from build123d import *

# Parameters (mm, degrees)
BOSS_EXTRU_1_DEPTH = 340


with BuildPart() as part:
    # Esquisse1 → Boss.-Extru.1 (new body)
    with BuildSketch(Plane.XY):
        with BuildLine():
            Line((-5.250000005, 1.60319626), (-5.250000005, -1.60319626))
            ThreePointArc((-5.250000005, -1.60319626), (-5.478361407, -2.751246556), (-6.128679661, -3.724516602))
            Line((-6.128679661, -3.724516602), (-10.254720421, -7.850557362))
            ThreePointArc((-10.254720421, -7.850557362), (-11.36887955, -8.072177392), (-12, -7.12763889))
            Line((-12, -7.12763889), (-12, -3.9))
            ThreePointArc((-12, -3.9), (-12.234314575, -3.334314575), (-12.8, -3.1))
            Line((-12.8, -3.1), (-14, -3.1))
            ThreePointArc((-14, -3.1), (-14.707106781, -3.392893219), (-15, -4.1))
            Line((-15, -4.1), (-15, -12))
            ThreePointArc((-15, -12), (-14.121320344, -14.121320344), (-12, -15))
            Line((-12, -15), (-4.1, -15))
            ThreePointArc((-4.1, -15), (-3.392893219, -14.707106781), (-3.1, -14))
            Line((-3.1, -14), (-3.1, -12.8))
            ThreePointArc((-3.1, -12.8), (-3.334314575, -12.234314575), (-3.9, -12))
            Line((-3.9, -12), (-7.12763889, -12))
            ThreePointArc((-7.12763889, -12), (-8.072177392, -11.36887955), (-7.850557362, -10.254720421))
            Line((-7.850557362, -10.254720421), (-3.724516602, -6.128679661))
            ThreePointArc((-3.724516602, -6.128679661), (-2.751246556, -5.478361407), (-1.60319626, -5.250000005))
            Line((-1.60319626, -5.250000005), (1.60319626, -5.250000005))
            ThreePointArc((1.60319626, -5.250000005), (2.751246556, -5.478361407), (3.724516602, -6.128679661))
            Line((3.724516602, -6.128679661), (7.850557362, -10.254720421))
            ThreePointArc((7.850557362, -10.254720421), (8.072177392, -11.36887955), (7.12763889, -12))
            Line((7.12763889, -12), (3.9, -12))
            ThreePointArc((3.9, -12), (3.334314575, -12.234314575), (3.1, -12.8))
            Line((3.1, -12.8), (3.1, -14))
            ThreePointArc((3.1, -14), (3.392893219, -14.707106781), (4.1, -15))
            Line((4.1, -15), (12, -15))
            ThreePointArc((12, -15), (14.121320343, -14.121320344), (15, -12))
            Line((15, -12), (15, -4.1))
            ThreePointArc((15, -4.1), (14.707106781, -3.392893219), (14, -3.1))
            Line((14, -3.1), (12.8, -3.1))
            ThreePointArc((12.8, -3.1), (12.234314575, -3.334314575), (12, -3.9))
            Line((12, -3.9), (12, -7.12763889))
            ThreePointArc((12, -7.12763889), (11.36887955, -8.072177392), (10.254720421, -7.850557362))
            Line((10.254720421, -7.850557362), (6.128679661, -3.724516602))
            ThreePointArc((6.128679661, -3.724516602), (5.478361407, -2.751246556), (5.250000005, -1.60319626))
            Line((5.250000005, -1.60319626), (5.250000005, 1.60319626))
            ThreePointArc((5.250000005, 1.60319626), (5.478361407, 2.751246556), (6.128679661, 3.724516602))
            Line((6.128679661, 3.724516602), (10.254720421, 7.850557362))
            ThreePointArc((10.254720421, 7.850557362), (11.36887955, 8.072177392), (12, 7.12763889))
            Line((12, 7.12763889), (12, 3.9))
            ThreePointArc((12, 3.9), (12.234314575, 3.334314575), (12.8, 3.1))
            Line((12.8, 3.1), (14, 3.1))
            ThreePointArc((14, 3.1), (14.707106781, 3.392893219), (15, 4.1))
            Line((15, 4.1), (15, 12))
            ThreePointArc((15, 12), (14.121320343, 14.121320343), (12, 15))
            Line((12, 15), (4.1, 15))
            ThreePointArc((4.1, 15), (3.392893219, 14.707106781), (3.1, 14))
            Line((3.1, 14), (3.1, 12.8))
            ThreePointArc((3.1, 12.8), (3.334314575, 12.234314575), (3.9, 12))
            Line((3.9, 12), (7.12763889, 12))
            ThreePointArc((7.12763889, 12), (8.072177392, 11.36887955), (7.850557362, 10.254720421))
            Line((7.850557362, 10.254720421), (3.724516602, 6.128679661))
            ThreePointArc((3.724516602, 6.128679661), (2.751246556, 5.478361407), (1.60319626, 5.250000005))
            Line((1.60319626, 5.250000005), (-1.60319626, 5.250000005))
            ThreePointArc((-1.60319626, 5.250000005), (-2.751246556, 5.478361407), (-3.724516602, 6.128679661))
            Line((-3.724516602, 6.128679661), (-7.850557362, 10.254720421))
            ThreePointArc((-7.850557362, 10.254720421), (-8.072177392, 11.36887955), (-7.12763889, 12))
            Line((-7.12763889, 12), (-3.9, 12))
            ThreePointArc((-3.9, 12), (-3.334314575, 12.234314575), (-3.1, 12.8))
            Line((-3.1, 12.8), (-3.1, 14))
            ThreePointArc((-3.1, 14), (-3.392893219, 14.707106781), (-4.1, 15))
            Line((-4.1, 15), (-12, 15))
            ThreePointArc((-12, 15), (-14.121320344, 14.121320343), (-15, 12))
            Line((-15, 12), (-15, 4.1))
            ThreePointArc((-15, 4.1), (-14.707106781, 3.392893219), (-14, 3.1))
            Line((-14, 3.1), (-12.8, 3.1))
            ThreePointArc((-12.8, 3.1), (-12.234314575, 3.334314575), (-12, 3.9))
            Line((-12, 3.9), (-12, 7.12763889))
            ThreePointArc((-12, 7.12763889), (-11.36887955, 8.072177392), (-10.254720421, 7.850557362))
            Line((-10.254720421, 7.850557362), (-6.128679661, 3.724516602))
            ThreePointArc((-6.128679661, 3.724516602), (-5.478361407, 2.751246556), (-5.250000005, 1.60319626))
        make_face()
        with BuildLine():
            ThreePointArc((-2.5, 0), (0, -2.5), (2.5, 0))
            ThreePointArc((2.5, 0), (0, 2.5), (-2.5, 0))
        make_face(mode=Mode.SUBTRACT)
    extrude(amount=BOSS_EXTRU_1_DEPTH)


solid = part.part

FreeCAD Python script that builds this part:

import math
import FreeCAD as App
import Part
import Sketcher
from FreeCAD import Vector
Q = App.Units.Quantity

doc = App.newDocument("Part")
params = doc.addObject("Spreadsheet::Sheet", "Params")
for row, (alias, value) in enumerate([
    ("sketch1_diameter", "5 mm"),
    ("sketch1_radius", "3 mm"),
    ("sketch1_radius2", "1 mm"),
    ("sketch1_radius3", "0.8 mm"),
    ("sketch1_width", "7.9 mm"),
    ("pad1_length", "340 mm"),
], start=1):
    params.set(f"A{row}", alias)
    params.set(f"B{row}", "=" + value)
    params.setAlias(f"B{row}", alias)

body = doc.addObject("PartDesign::Body", "Body")

# Sketch on XY plane
sketch1 = body.newObject("Sketcher::SketchObject", "Sketch")
sketch1.AttachmentSupport = (doc.getObject("XY_Plane"), [""])
sketch1.MapMode = "FlatFace"
sketch1.addGeometry([
    Part.LineSegment(Vector(-5.3, 1.6, 0), Vector(-5.3, -1.6, 0)),  # 0
    Part.ArcOfCircle(Part.Circle(Vector(-8.2, -1.6, 0), Vector(0, 0, 1), 3), math.radians(-45), math.radians(0)),  # 1
    Part.LineSegment(Vector(-6.1, -3.7, 0), Vector(-10.3, -7.9, 0)),  # 2
    Part.ArcOfCircle(Part.Circle(Vector(-11, -7.1, 0), Vector(0, 0, 1), 1), math.radians(180), math.radians(315)),  # 3
    Part.LineSegment(Vector(-12, -7.1, 0), Vector(-12, -3.9, 0)),  # 4
    Part.ArcOfCircle(Part.Circle(Vector(-12.8, -3.9, 0), Vector(0, 0, 1), 0.8), math.radians(0), math.radians(90)),  # 5
    Part.LineSegment(Vector(-12.8, -3.1, 0), Vector(-14, -3.1, 0)),  # 6
    Part.ArcOfCircle(Part.Circle(Vector(-14, -4.1, 0), Vector(0, 0, 1), 1), math.radians(90), math.radians(180)),  # 7
    Part.LineSegment(Vector(-15, -4.1, 0), Vector(-15, -12, 0)),  # 8
    Part.ArcOfCircle(Part.Circle(Vector(-12, -12, 0), Vector(0, 0, 1), 3), math.radians(180), math.radians(270)),  # 9
    Part.LineSegment(Vector(-12, -15, 0), Vector(-4.1, -15, 0)),  # 10
    Part.ArcOfCircle(Part.Circle(Vector(-4.1, -14, 0), Vector(0, 0, 1), 1), math.radians(-90), math.radians(0)),  # 11
    Part.LineSegment(Vector(-3.1, -14, 0), Vector(-3.1, -12.8, 0)),  # 12
    Part.ArcOfCircle(Part.Circle(Vector(-3.9, -12.8, 0), Vector(0, 0, 1), 0.8), math.radians(0), math.radians(90)),  # 13
    Part.LineSegment(Vector(-3.9, -12, 0), Vector(-7.1, -12, 0)),  # 14
    Part.ArcOfCircle(Part.Circle(Vector(-7.1, -11, 0), Vector(0, 0, 1), 1), math.radians(135), math.radians(270)),  # 15
    Part.LineSegment(Vector(-7.9, -10.3, 0), Vector(-3.7, -6.1, 0)),  # 16
    Part.ArcOfCircle(Part.Circle(Vector(-1.6, -8.2, 0), Vector(0, 0, 1), 3), math.radians(90), math.radians(135)),  # 17
    Part.LineSegment(Vector(-1.6, -5.3, 0), Vector(1.6, -5.3, 0)),  # 18
    Part.ArcOfCircle(Part.Circle(Vector(1.6, -8.2, 0), Vector(0, 0, 1), 3), math.radians(45), math.radians(90)),  # 19
    Part.LineSegment(Vector(3.7, -6.1, 0), Vector(7.9, -10.3, 0)),  # 20
    Part.ArcOfCircle(Part.Circle(Vector(7.1, -11, 0), Vector(0, 0, 1), 1), math.radians(-90), math.radians(45)),  # 21
    Part.LineSegment(Vector(7.1, -12, 0), Vector(3.9, -12, 0)),  # 22
    Part.ArcOfCircle(Part.Circle(Vector(3.9, -12.8, 0), Vector(0, 0, 1), 0.8), math.radians(90), math.radians(180)),  # 23
    Part.LineSegment(Vector(3.1, -12.8, 0), Vector(3.1, -14, 0)),  # 24
    Part.ArcOfCircle(Part.Circle(Vector(4.1, -14, 0), Vector(0, 0, 1), 1), math.radians(-180), math.radians(-90)),  # 25
    Part.LineSegment(Vector(4.1, -15, 0), Vector(12, -15, 0)),  # 26
    Part.ArcOfCircle(Part.Circle(Vector(12, -12, 0), Vector(0, 0, 1), 3), math.radians(-90), math.radians(0)),  # 27
    Part.LineSegment(Vector(15, -12, 0), Vector(15, -4.1, 0)),  # 28
    Part.ArcOfCircle(Part.Circle(Vector(14, -4.1, 0), Vector(0, 0, 1), 1), math.radians(0), math.radians(90)),  # 29
    Part.LineSegment(Vector(14, -3.1, 0), Vector(12.8, -3.1, 0)),  # 30
    Part.ArcOfCircle(Part.Circle(Vector(12.8, -3.9, 0), Vector(0, 0, 1), 0.8), math.radians(90), math.radians(180)),  # 31
    Part.LineSegment(Vector(12, -3.9, 0), Vector(12, -7.1, 0)),  # 32
    Part.ArcOfCircle(Part.Circle(Vector(11, -7.1, 0), Vector(0, 0, 1), 1), math.radians(-135), math.radians(0)),  # 33
    Part.LineSegment(Vector(10.3, -7.9, 0), Vector(6.1, -3.7, 0)),  # 34
    Part.ArcOfCircle(Part.Circle(Vector(8.2, -1.6, 0), Vector(0, 0, 1), 3), math.radians(180), math.radians(225)),  # 35
    Part.LineSegment(Vector(5.3, -1.6, 0), Vector(5.3, 1.6, 0)),  # 36
    Part.ArcOfCircle(Part.Circle(Vector(8.2, 1.6, 0), Vector(0, 0, 1), 3), math.radians(135), math.radians(180)),  # 37
    Part.LineSegment(Vector(6.1, 3.7, 0), Vector(10.3, 7.9, 0)),  # 38
    Part.ArcOfCircle(Part.Circle(Vector(11, 7.1, 0), Vector(0, 0, 1), 1), math.radians(0), math.radians(135)),  # 39
    Part.LineSegment(Vector(12, 7.1, 0), Vector(12, 3.9, 0)),  # 40
    Part.ArcOfCircle(Part.Circle(Vector(12.8, 3.9, 0), Vector(0, 0, 1), 0.8), math.radians(180), math.radians(270)),  # 41
    Part.LineSegment(Vector(12.8, 3.1, 0), Vector(14, 3.1, 0)),  # 42
    Part.ArcOfCircle(Part.Circle(Vector(14, 4.1, 0), Vector(0, 0, 1), 1), math.radians(-90), math.radians(0)),  # 43
    Part.LineSegment(Vector(15, 4.1, 0), Vector(15, 12, 0)),  # 44
    Part.ArcOfCircle(Part.Circle(Vector(12, 12, 0), Vector(0, 0, 1), 3), math.radians(0), math.radians(90)),  # 45
    Part.LineSegment(Vector(12, 15, 0), Vector(4.1, 15, 0)),  # 46
    Part.ArcOfCircle(Part.Circle(Vector(4.1, 14, 0), Vector(0, 0, 1), 1), math.radians(90), math.radians(180)),  # 47
    Part.LineSegment(Vector(3.1, 14, 0), Vector(3.1, 12.8, 0)),  # 48
    Part.ArcOfCircle(Part.Circle(Vector(3.9, 12.8, 0), Vector(0, 0, 1), 0.8), math.radians(180), math.radians(270)),  # 49
    Part.LineSegment(Vector(3.9, 12, 0), Vector(7.1, 12, 0)),  # 50
    Part.ArcOfCircle(Part.Circle(Vector(7.1, 11, 0), Vector(0, 0, 1), 1), math.radians(-45), math.radians(90)),  # 51
    Part.LineSegment(Vector(7.9, 10.3, 0), Vector(3.7, 6.1, 0)),  # 52
    Part.ArcOfCircle(Part.Circle(Vector(1.6, 8.2, 0), Vector(0, 0, 1), 3), math.radians(-90), math.radians(-45)),  # 53
    Part.LineSegment(Vector(1.6, 5.3, 0), Vector(-1.6, 5.3, 0)),  # 54
    Part.ArcOfCircle(Part.Circle(Vector(-1.6, 8.2, 0), Vector(0, 0, 1), 3), math.radians(-135), math.radians(-90)),  # 55
    Part.LineSegment(Vector(-3.7, 6.1, 0), Vector(-7.9, 10.3, 0)),  # 56
    Part.ArcOfCircle(Part.Circle(Vector(-7.1, 11, 0), Vector(0, 0, 1), 1), math.radians(90), math.radians(225)),  # 57
    Part.LineSegment(Vector(-7.1, 12, 0), Vector(-3.9, 12, 0)),  # 58
    Part.ArcOfCircle(Part.Circle(Vector(-3.9, 12.8, 0), Vector(0, 0, 1), 0.8), math.radians(-90), math.radians(0)),  # 59
    Part.LineSegment(Vector(-3.1, 12.8, 0), Vector(-3.1, 14, 0)),  # 60
    Part.ArcOfCircle(Part.Circle(Vector(-4.1, 14, 0), Vector(0, 0, 1), 1), math.radians(0), math.radians(90)),  # 61
    Part.LineSegment(Vector(-4.1, 15, 0), Vector(-12, 15, 0)),  # 62
    Part.ArcOfCircle(Part.Circle(Vector(-12, 12, 0), Vector(0, 0, 1), 3), math.radians(90), math.radians(180)),  # 63
    Part.LineSegment(Vector(-15, 12, 0), Vector(-15, 4.1, 0)),  # 64
    Part.ArcOfCircle(Part.Circle(Vector(-14, 4.1, 0), Vector(0, 0, 1), 1), math.radians(-180), math.radians(-90)),  # 65
    Part.LineSegment(Vector(-14, 3.1, 0), Vector(-12.8, 3.1, 0)),  # 66
    Part.ArcOfCircle(Part.Circle(Vector(-12.8, 3.9, 0), Vector(0, 0, 1), 0.8), math.radians(-90), math.radians(0)),  # 67
    Part.LineSegment(Vector(-12, 3.9, 0), Vector(-12, 7.1, 0)),  # 68
    Part.ArcOfCircle(Part.Circle(Vector(-11, 7.1, 0), Vector(0, 0, 1), 1), math.radians(45), math.radians(180)),  # 69
    Part.LineSegment(Vector(-10.3, 7.9, 0), Vector(-6.1, 3.7, 0)),  # 70
    Part.ArcOfCircle(Part.Circle(Vector(-8.2, 1.6, 0), Vector(0, 0, 1), 3), math.radians(0), math.radians(45)),  # 71
    Part.Circle(Vector(0, 0, 0), Vector(0, 0, 1), 2.5),  # 72
], False)
sketch1.addConstraint([
    Sketcher.Constraint("Tangent", 0, 2, 1, 2),
    Sketcher.Constraint("Tangent", 1, 1, 2, 1),
    Sketcher.Constraint("Tangent", 2, 2, 3, 2),
    Sketcher.Constraint("Tangent", 3, 1, 4, 1),
    Sketcher.Constraint("Tangent", 4, 2, 5, 1),
    Sketcher.Constraint("Tangent", 5, 2, 6, 1),
    Sketcher.Constraint("Tangent", 6, 2, 7, 1),
    Sketcher.Constraint("Tangent", 7, 2, 8, 1),
    Sketcher.Constraint("Tangent", 8, 2, 9, 1),
    Sketcher.Constraint("Tangent", 9, 2, 10, 1),
    Sketcher.Constraint("Tangent", 10, 2, 11, 1),
    Sketcher.Constraint("Tangent", 11, 2, 12, 1),
    Sketcher.Constraint("Tangent", 12, 2, 13, 1),
    Sketcher.Constraint("Tangent", 13, 2, 14, 1),
    Sketcher.Constraint("Tangent", 14, 2, 15, 2),
    Sketcher.Constraint("Tangent", 15, 1, 16, 1),
    Sketcher.Constraint("Tangent", 16, 2, 17, 2),
    Sketcher.Constraint("Tangent", 17, 1, 18, 1),
    Sketcher.Constraint("Tangent", 18, 2, 19, 2),
    Sketcher.Constraint("Tangent", 19, 1, 20, 1),
    Sketcher.Constraint("Tangent", 20, 2, 21, 2),
    Sketcher.Constraint("Tangent", 21, 1, 22, 1),
    Sketcher.Constraint("Tangent", 22, 2, 23, 1),
    Sketcher.Constraint("Tangent", 23, 2, 24, 1),
    Sketcher.Constraint("Tangent", 24, 2, 25, 1),
    Sketcher.Constraint("Tangent", 25, 2, 26, 1),
    Sketcher.Constraint("Tangent", 26, 2, 27, 1),
    Sketcher.Constraint("Tangent", 27, 2, 28, 1),
    Sketcher.Constraint("Tangent", 28, 2, 29, 1),
    Sketcher.Constraint("Tangent", 29, 2, 30, 1),
    Sketcher.Constraint("Tangent", 30, 2, 31, 1),
    Sketcher.Constraint("Tangent", 31, 2, 32, 1),
    Sketcher.Constraint("Tangent", 32, 2, 33, 2),
    Sketcher.Constraint("Tangent", 33, 1, 34, 1),
    Sketcher.Constraint("Tangent", 34, 2, 35, 2),
    Sketcher.Constraint("Tangent", 35, 1, 36, 1),
    Sketcher.Constraint("Tangent", 36, 2, 37, 2),
    Sketcher.Constraint("Tangent", 37, 1, 38, 1),
    Sketcher.Constraint("Tangent", 38, 2, 39, 2),
    Sketcher.Constraint("Tangent", 39, 1, 40, 1),
    Sketcher.Constraint("Tangent", 40, 2, 41, 1),
    Sketcher.Constraint("Tangent", 41, 2, 42, 1),
    Sketcher.Constraint("Tangent", 42, 2, 43, 1),
    Sketcher.Constraint("Tangent", 43, 2, 44, 1),
    Sketcher.Constraint("Tangent", 44, 2, 45, 1),
    Sketcher.Constraint("Tangent", 45, 2, 46, 1),
    Sketcher.Constraint("Tangent", 46, 2, 47, 1),
    Sketcher.Constraint("Tangent", 47, 2, 48, 1),
    Sketcher.Constraint("Tangent", 48, 2, 49, 1),
    Sketcher.Constraint("Tangent", 49, 2, 50, 1),
    Sketcher.Constraint("Tangent", 50, 2, 51, 2),
    Sketcher.Constraint("Tangent", 51, 1, 52, 1),
    Sketcher.Constraint("Tangent", 52, 2, 53, 2),
    Sketcher.Constraint("Tangent", 53, 1, 54, 1),
    Sketcher.Constraint("Tangent", 54, 2, 55, 2),
    Sketcher.Constraint("Tangent", 55, 1, 56, 1),
    Sketcher.Constraint("Tangent", 56, 2, 57, 2),
    Sketcher.Constraint("Tangent", 57, 1, 58, 1),
    Sketcher.Constraint("Tangent", 58, 2, 59, 1),
    Sketcher.Constraint("Tangent", 59, 2, 60, 1),
    Sketcher.Constraint("Tangent", 60, 2, 61, 1),
    Sketcher.Constraint("Tangent", 61, 2, 62, 1),
    Sketcher.Constraint("Tangent", 62, 2, 63, 1),
    Sketcher.Constraint("Tangent", 63, 2, 64, 1),
    Sketcher.Constraint("Tangent", 64, 2, 65, 1),
    Sketcher.Constraint("Tangent", 65, 2, 66, 1),
    Sketcher.Constraint("Tangent", 66, 2, 67, 1),
    Sketcher.Constraint("Tangent", 67, 2, 68, 1),
    Sketcher.Constraint("Tangent", 68, 2, 69, 2),
    Sketcher.Constraint("Tangent", 69, 1, 70, 1),
    Sketcher.Constraint("Tangent", 70, 2, 71, 2),
    Sketcher.Constraint("Tangent", 71, 1, 0, 1),
    Sketcher.Constraint("Vertical", 0),
    Sketcher.Constraint("Vertical", 4),
    Sketcher.Constraint("Horizontal", 6),
    Sketcher.Constraint("Vertical", 8),
    Sketcher.Constraint("Horizontal", 10),
    Sketcher.Constraint("Vertical", 12),
    Sketcher.Constraint("Horizontal", 14),
    Sketcher.Constraint("Horizontal", 18),
    Sketcher.Constraint("Horizontal", 22),
    Sketcher.Constraint("Vertical", 24),
    Sketcher.Constraint("Horizontal", 26),
    Sketcher.Constraint("Vertical", 28),
    Sketcher.Constraint("Horizontal", 30),
    Sketcher.Constraint("Vertical", 32),
    Sketcher.Constraint("Vertical", 36),
    Sketcher.Constraint("Vertical", 40),
    Sketcher.Constraint("Horizontal", 42),
    Sketcher.Constraint("Vertical", 44),
    Sketcher.Constraint("Horizontal", 46),
    Sketcher.Constraint("Vertical", 48),
    Sketcher.Constraint("Horizontal", 50),
    Sketcher.Constraint("Horizontal", 54),
    Sketcher.Constraint("Horizontal", 58),
    Sketcher.Constraint("Vertical", 60),
    Sketcher.Constraint("Horizontal", 62),
    Sketcher.Constraint("Vertical", 64),
    Sketcher.Constraint("Horizontal", 66),
    Sketcher.Constraint("Vertical", 68),
    Sketcher.Constraint("Coincident", 72, 3, -1, 1),
    Sketcher.Constraint("Equal", 1, 9),
    Sketcher.Constraint("Equal", 7, 11),
    Sketcher.Constraint("Equal", 5, 13),
    Sketcher.Constraint("Equal", 3, 15),
    Sketcher.Constraint("Equal", 9, 17),
    Sketcher.Constraint("Equal", 17, 19),
    Sketcher.Constraint("Equal", 15, 21),
    Sketcher.Constraint("Equal", 13, 23),
    Sketcher.Constraint("Equal", 11, 25),
    Sketcher.Constraint("Equal", 19, 27),
    Sketcher.Constraint("Equal", 25, 29),
    Sketcher.Constraint("Equal", 23, 31),
    Sketcher.Constraint("Equal", 21, 33),
    Sketcher.Constraint("Equal", 27, 35),
    Sketcher.Constraint("Equal", 35, 37),
    Sketcher.Constraint("Equal", 33, 39),
    Sketcher.Constraint("Equal", 31, 41),
    Sketcher.Constraint("Equal", 29, 43),
    Sketcher.Constraint("Equal", 37, 45),
    Sketcher.Constraint("Equal", 43, 47),
    Sketcher.Constraint("Equal", 41, 49),
    Sketcher.Constraint("Equal", 39, 51),
    Sketcher.Constraint("Equal", 45, 53),
    Sketcher.Constraint("Equal", 53, 55),
    Sketcher.Constraint("Equal", 51, 57),
    Sketcher.Constraint("Equal", 49, 59),
    Sketcher.Constraint("Equal", 47, 61),
    Sketcher.Constraint("Equal", 55, 63),
    Sketcher.Constraint("Equal", 61, 65),
    Sketcher.Constraint("Equal", 59, 67),
    Sketcher.Constraint("Equal", 57, 69),
    Sketcher.Constraint("Equal", 63, 71),
    Sketcher.Constraint("Symmetric", 1, 3, 37, 3, -1, 1),
    Sketcher.Constraint("Symmetric", 3, 3, 39, 3, -1, 1),
    Sketcher.Constraint("Symmetric", 7, 3, 43, 3, -1, 1),
    Sketcher.Constraint("Symmetric", 11, 3, 47, 3, -1, 1),
    Sketcher.Constraint("Symmetric", 15, 3, 51, 3, -1, 1),
    Sketcher.Constraint("Symmetric", 17, 3, 53, 3, -1, 1),
    Sketcher.Constraint("Symmetric", 21, 3, 57, 3, -1, 1),
    Sketcher.Constraint("Symmetric", 25, 3, 61, 3, -1, 1),
    Sketcher.Constraint("Symmetric", 29, 3, 65, 3, -1, 1),
    Sketcher.Constraint("Symmetric", 33, 3, 69, 3, -1, 1),
    Sketcher.Constraint("Symmetric", 15, 3, 21, 3, -2),
    Sketcher.Constraint("Symmetric", 11, 3, 25, 3, -2),
    Sketcher.Constraint("Symmetric", 7, 3, 29, 3, -2),
    Sketcher.Constraint("Symmetric", 3, 3, 33, 3, -2),
    Sketcher.Constraint("Parallel", 2, 16),
    Sketcher.Constraint("Perpendicular", 16, 20),
    Sketcher.Constraint("Parallel", 20, 34),
    Sketcher.Constraint("Perpendicular", 52, 56),
    Sketcher.Constraint("Parallel", 56, 70),
    Sketcher.Constraint("Horizontal", 1, 3, 35, 3),
    Sketcher.Constraint("Horizontal", 8, 2, 13, 2),
    Sketcher.Constraint("Vertical", 63, 3, 3, 1),
    Sketcher.Constraint("Equal", 54, 0),
    Sketcher.Constraint("Equal", 58, 4),
    Sketcher.Constraint("Equal", 62, 8),
    Sketcher.Constraint("Equal", 2, 16),
    Sketcher.Constraint("Diameter", 72, Q("5 mm")),
    Sketcher.Constraint("Radius", 1, Q("3 mm")),
    Sketcher.Constraint("Radius", 7, Q("1 mm")),
    Sketcher.Constraint("Radius", 5, Q("0.8 mm")),
    Sketcher.Constraint("DistanceX", 10, 1, 10, 2, Q("7.9 mm")),
    Sketcher.Constraint("DistanceX", 7, 3, -1, 1, Q("14 mm")),
    Sketcher.Constraint("DistanceX", 1, 3, -1, 1, Q("8.25 mm")),
    Sketcher.Constraint("Radius", 3, Q("1.022361 mm")),
    Sketcher.Constraint("DistanceX", 14, 2, 14, 1, Q("3.227639 mm")),
])
sketch1.setExpression("Constraints[159]", "Params.sketch1_diameter")
sketch1.setExpression("Constraints[160]", "Params.sketch1_radius")
sketch1.setExpression("Constraints[161]", "Params.sketch1_radius2")
sketch1.setExpression("Constraints[162]", "Params.sketch1_radius3")
sketch1.setExpression("Constraints[163]", "Params.sketch1_width")
pad1 = body.newObject("PartDesign::Pad", "Pad")
pad1.Profile = sketch1
pad1.setExpression("Length", "Params.pad1_length")

doc.recompute()
